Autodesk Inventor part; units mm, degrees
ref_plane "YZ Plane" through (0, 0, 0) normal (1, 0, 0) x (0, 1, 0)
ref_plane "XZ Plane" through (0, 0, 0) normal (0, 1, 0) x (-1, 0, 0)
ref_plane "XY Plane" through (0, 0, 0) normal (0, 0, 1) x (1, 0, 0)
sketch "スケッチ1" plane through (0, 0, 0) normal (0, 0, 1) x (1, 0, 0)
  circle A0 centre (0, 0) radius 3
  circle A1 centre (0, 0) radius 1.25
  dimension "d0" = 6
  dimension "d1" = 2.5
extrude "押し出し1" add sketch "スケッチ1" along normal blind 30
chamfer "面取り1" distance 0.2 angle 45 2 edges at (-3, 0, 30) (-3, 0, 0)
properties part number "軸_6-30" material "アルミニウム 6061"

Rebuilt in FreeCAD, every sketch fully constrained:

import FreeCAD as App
import Part
import Sketcher
Q = App.Units.Quantity


def edges_at(feature, points):
    """Names of the edges that pass closest to the given points."""
    edges = feature.Shape.Edges
    near = lambda p: min(range(len(edges)), key=lambda i: edges[i].distToShape(Part.Vertex(*p))[0])
    return sorted({f"Edge{near(p) + 1}" for p in points})

doc = App.newDocument("Part")
body = doc.addObject("PartDesign::Body", "Body")

# Sketch on XY plane
sketch1 = body.newObject("Sketcher::SketchObject", "Sketch")
sketch1.AttachmentSupport = (doc.getObject("XY_Plane"), [""])
sketch1.MapMode = "FlatFace"
sketch1.addGeometry([
    Part.Circle(App.Vector(0, 0, 0), App.Vector(0, 0, 1), 3),
    Part.Circle(App.Vector(0, 0, 0), App.Vector(0, 0, 1), 1.2),
], False)
sketch1.addConstraint([
    Sketcher.Constraint("Coincident", 0, 3, -1, 1),
    Sketcher.Constraint("Coincident", 1, 3, -1, 1),
    Sketcher.Constraint("Diameter", 0, Q("6 mm")),
    Sketcher.Constraint("Diameter", 1, Q("2.5 mm")),
])
pad1 = body.newObject("PartDesign::Pad", "Pad")
pad1.Profile = sketch1
pad1.Length = 30
doc.recompute()

chamfer = body.newObject("PartDesign::Chamfer", "Chamfer")
chamfer.Base = (pad1, edges_at(pad1, [(-3, 0, 30), (-3, 0, 0)]))
chamfer.Size = 0.2

doc.recompute()
